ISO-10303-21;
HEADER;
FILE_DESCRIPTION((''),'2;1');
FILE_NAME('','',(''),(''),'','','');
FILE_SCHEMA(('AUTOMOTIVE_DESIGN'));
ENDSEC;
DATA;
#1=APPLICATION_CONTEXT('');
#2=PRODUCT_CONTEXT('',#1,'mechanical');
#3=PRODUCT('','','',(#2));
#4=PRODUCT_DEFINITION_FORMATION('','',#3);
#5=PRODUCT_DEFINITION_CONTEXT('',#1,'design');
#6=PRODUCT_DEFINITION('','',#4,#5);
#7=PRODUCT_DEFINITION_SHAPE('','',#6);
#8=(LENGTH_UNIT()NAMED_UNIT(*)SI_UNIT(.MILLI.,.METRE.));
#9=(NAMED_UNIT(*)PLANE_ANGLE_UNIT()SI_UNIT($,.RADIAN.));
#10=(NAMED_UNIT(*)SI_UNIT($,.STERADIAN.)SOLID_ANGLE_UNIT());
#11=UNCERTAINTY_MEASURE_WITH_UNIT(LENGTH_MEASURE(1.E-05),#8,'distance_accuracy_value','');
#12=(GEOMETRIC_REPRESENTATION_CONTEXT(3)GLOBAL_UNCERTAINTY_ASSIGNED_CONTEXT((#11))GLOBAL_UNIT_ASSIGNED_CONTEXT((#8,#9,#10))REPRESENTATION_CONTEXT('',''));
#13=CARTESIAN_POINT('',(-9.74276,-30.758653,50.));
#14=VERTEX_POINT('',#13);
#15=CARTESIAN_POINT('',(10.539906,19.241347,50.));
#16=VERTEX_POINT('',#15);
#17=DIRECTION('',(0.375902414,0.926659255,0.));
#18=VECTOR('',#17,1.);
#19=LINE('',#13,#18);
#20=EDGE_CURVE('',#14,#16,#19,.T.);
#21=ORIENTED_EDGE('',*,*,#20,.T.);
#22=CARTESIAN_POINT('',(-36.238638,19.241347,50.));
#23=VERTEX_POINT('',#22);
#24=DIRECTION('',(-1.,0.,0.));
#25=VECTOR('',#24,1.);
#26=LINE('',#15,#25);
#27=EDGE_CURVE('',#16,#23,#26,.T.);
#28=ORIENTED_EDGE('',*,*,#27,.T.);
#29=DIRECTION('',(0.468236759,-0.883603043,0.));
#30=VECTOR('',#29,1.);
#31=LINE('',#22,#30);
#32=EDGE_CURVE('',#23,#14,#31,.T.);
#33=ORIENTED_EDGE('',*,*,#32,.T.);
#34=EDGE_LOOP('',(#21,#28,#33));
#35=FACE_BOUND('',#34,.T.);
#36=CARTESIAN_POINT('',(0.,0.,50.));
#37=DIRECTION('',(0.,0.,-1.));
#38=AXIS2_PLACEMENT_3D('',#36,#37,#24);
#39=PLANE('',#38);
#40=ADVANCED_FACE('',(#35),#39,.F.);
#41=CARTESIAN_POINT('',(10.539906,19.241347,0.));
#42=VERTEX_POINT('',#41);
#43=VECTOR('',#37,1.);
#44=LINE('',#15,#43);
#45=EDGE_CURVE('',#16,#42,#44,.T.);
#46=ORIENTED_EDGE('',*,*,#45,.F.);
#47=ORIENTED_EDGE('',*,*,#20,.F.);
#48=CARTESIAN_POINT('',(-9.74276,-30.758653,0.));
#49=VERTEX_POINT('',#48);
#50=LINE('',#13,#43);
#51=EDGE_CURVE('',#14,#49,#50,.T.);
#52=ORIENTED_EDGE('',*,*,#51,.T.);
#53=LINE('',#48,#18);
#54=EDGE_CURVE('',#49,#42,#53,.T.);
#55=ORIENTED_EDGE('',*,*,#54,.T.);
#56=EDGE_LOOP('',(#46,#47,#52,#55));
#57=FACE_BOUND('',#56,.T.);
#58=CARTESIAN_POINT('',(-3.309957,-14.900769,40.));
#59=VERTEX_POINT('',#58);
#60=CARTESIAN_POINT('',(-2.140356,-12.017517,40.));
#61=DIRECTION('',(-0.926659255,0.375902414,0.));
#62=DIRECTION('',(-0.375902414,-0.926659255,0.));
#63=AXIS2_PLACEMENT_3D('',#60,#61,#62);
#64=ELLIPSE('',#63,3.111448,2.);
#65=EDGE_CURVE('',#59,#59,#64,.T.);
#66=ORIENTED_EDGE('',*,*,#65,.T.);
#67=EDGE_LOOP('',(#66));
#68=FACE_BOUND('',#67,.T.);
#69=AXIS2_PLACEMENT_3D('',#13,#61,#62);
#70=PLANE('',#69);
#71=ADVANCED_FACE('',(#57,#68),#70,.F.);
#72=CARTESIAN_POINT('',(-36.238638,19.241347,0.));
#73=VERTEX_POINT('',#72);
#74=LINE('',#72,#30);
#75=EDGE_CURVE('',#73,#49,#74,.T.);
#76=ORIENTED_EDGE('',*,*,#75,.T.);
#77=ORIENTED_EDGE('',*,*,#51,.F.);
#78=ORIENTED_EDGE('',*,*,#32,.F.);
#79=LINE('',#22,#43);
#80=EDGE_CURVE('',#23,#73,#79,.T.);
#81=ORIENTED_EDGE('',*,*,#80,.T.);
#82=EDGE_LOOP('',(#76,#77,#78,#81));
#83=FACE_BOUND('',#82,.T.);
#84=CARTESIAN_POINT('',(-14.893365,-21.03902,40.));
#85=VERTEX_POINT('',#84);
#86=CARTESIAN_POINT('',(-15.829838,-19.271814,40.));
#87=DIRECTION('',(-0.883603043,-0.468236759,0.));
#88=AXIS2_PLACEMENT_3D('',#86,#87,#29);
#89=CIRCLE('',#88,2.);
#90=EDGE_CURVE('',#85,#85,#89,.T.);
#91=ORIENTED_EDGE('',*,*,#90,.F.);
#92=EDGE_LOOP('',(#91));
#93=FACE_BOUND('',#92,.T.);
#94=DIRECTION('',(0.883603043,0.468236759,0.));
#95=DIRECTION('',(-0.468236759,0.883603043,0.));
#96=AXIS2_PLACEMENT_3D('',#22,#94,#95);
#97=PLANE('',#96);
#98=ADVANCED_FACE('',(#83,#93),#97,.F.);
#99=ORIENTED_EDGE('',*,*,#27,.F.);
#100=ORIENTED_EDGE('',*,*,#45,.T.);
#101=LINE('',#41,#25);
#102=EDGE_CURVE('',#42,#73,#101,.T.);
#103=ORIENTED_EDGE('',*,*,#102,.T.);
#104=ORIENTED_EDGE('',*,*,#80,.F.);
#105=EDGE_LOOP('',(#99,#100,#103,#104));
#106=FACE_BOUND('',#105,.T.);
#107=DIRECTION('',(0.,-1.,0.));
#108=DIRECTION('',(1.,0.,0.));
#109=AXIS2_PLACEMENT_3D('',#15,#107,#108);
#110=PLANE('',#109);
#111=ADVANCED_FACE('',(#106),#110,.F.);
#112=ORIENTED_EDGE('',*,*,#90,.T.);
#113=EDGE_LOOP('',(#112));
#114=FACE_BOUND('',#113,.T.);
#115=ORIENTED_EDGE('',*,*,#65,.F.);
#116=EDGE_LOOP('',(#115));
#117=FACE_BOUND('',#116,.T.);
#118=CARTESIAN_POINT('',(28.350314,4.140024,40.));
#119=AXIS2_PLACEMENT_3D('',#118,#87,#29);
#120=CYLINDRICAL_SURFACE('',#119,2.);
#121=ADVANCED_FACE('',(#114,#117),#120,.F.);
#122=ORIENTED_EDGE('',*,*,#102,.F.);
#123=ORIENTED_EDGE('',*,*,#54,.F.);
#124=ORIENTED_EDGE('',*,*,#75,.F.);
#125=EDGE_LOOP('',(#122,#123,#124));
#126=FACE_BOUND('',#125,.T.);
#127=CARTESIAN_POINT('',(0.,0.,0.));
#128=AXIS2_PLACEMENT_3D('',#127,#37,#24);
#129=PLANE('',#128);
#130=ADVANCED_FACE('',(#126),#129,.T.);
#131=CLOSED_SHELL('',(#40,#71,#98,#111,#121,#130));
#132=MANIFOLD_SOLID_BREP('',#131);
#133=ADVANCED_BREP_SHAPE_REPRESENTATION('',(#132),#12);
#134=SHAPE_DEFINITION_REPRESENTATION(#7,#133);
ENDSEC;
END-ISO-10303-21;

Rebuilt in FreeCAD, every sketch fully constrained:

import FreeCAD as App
import Part
import Sketcher

V = App.Vector
Q = App.Units.Quantity


def add_polygon(sketch, points):
    """Adds a closed chain of lines whose ends are joined by coincident constraints."""
    first, n = sketch.GeometryCount, len(points)
    for a, b in zip(points, points[1:] + points[:1]):
        sketch.addGeometry(Part.LineSegment(App.Vector(*a, 0), App.Vector(*b, 0)), False)
    for i in range(n):
        sketch.addConstraint(Sketcher.Constraint("Coincident", first + i, 2, first + (i + 1) % n, 1))

doc = App.newDocument("Part")
body = doc.addObject("PartDesign::Body", "Body")

sketch1 = body.newObject("Sketcher::SketchObject", "Sketch")
sketch1.AttachmentSupport = (doc.getObject("XY_Plane"), [""])
sketch1.MapMode = "FlatFace"
add_polygon(sketch1, [(-36, 19), (-10, -31), (11, 19)])
sketch1.addConstraint(Sketcher.Constraint("Horizontal", 2))
sketch1.addConstraint(Sketcher.Constraint("DistanceY", 0, 2, 1, 2, Q("50 mm")))
sketch1.addConstraint(Sketcher.Constraint("DistanceX", 2, 2, 2, 1, Q("46.778544 mm")))
sketch1.addConstraint(Sketcher.Constraint("DistanceX", 0, 2, -1, 1, Q("9.74276 mm")))
sketch1.addConstraint(Sketcher.Constraint("Distance", 0, Q("56.586496 mm")))
sketch1.addConstraint(Sketcher.Constraint("DistanceY", 0, 2, -1, 1, Q("30.758653 mm")))
pad1 = body.newObject("PartDesign::Pad", "Pad")
pad1.Profile = sketch1
pad1.Length = 50

sketch2 = body.newObject("Sketcher::SketchObject", "Sketch001")
sketch2.Placement = App.Placement(V(-20.332647, -10.774626, 0), App.Rotation(V(0, 0, 1), V(-0.468236759, 0.883603043, 0), V(-0.883603043, -0.468236759, 0), "ZXY"))
sketch2.addGeometry(Part.Circle(V(40, -9.6, 0), V(0, 0, 1), 2), False)
sketch2.addConstraint(Sketcher.Constraint("Diameter", 0, Q("4 mm")))
sketch2.addConstraint(Sketcher.Constraint("DistanceX", -1, 1, 0, 3, Q("40 mm")))
sketch2.addConstraint(Sketcher.Constraint("DistanceY", 0, 3, -1, 1, Q("9.616521 mm")))
pocket1 = body.newObject("PartDesign::Pocket", "Pocket")
pocket1.Profile = sketch2
pocket1.Length = 50

doc.recompute()
